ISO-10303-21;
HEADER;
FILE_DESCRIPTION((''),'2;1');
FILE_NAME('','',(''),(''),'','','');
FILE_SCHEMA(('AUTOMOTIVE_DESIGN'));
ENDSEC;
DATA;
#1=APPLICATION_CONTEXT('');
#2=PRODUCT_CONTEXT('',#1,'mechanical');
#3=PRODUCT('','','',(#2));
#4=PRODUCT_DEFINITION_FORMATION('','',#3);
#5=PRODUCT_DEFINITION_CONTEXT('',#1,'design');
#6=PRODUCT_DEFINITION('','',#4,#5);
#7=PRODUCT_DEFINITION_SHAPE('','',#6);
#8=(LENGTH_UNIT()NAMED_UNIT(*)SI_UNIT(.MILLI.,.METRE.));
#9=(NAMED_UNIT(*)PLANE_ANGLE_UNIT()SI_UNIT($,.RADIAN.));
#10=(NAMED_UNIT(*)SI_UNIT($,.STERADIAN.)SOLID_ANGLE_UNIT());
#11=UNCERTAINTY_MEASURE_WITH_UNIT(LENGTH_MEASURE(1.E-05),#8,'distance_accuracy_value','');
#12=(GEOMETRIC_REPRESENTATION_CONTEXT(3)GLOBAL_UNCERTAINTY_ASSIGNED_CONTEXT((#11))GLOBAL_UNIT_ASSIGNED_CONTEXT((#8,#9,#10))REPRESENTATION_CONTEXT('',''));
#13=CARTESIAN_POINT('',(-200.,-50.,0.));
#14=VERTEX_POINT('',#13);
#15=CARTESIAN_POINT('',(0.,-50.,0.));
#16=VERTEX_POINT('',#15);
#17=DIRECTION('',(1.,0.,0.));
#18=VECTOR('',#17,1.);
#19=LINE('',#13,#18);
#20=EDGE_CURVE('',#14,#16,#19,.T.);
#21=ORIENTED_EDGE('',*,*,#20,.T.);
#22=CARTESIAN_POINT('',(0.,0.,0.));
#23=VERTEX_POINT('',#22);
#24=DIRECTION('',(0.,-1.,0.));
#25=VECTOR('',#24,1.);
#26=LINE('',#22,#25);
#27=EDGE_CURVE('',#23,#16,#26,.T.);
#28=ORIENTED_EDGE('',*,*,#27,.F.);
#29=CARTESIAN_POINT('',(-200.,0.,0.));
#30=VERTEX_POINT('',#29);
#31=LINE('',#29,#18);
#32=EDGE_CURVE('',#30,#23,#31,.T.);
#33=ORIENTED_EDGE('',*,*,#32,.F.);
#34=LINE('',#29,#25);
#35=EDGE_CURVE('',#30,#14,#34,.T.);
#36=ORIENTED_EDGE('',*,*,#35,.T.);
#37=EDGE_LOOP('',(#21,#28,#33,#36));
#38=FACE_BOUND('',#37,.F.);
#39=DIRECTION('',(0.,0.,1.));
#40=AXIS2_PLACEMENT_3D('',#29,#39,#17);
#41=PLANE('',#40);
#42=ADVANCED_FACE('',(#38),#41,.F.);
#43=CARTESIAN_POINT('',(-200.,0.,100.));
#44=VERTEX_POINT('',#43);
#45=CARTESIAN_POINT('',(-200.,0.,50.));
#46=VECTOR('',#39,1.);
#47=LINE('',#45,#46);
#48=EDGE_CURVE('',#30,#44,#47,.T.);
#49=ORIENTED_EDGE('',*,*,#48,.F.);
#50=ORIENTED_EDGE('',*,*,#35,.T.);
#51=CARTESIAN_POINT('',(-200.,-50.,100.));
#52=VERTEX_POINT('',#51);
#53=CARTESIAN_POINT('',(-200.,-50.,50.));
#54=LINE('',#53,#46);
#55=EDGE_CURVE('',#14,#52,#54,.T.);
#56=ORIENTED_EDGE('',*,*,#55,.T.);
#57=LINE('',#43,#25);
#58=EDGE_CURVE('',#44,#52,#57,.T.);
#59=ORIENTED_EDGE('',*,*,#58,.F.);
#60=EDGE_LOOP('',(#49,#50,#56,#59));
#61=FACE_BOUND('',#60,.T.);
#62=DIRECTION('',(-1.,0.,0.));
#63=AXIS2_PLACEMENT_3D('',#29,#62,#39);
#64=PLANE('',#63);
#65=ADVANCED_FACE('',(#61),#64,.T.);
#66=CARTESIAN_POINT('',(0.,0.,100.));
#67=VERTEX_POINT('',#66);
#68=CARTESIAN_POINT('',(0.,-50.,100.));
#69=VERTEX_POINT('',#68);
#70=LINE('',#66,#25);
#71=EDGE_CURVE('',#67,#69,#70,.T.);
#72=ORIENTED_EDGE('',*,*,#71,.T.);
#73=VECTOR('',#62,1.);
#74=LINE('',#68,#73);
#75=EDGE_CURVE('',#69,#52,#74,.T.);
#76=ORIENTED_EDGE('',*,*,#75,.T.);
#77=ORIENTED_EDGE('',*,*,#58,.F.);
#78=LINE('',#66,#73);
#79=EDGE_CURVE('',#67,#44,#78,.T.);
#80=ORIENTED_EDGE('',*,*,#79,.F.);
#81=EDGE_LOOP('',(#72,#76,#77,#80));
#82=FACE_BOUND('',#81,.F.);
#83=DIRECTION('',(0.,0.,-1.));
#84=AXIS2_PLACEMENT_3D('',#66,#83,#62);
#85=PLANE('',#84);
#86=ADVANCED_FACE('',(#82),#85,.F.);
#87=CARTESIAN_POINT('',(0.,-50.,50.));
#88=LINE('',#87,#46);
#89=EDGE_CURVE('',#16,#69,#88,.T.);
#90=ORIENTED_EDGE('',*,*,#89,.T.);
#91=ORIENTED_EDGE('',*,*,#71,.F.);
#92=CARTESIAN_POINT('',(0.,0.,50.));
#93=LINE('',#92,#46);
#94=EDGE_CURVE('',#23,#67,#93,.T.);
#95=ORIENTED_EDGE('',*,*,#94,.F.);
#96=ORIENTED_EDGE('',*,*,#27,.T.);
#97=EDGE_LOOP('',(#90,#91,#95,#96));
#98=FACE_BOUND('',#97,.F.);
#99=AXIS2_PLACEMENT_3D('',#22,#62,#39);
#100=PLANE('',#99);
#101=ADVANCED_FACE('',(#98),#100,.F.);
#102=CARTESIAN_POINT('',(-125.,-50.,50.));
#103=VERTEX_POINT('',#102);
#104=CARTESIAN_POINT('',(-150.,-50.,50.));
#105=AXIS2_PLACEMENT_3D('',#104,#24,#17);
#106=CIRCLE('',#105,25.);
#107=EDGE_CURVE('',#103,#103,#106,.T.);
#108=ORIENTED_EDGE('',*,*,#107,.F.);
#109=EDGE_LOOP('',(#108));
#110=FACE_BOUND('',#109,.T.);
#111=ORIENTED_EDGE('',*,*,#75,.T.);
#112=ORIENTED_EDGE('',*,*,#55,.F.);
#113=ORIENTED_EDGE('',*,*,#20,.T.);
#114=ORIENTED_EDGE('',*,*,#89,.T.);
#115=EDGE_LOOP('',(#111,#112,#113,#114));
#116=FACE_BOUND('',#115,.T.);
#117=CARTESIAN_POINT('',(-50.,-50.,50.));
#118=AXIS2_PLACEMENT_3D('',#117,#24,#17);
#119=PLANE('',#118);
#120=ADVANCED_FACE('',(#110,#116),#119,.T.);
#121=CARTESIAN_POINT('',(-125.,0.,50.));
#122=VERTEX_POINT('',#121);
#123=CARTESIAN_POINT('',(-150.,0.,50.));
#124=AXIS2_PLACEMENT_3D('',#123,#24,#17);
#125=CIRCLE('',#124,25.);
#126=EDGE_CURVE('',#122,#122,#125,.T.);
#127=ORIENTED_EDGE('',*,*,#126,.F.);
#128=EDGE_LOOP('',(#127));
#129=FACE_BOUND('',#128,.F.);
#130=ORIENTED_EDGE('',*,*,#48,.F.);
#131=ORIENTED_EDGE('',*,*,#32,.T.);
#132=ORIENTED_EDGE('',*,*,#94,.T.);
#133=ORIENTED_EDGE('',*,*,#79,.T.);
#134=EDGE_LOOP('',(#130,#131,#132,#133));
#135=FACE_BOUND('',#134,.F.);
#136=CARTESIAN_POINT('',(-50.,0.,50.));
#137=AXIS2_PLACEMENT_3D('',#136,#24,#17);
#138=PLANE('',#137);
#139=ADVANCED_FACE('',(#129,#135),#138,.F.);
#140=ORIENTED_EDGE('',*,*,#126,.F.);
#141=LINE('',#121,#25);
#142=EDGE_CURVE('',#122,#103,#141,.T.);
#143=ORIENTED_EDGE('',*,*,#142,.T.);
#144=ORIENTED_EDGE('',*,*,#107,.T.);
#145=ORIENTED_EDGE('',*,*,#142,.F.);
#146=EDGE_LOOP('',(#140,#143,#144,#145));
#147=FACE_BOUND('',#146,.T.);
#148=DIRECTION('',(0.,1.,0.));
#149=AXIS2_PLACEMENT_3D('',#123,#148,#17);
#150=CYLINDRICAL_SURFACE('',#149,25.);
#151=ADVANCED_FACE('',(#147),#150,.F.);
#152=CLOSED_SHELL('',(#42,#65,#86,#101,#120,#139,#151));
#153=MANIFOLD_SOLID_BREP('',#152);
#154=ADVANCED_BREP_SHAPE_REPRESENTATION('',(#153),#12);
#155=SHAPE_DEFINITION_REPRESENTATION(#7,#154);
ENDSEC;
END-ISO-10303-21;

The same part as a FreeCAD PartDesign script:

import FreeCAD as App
import Part
import Sketcher

V = App.Vector
Q = App.Units.Quantity


def add_polygon(sketch, points):
    """Adds a closed chain of lines whose ends are joined by coincident constraints."""
    first, n = sketch.GeometryCount, len(points)
    for a, b in zip(points, points[1:] + points[:1]):
        sketch.addGeometry(Part.LineSegment(App.Vector(*a, 0), App.Vector(*b, 0)), False)
    for i in range(n):
        sketch.addConstraint(Sketcher.Constraint("Coincident", first + i, 2, first + (i + 1) % n, 1))

doc = App.newDocument("Part")
body = doc.addObject("PartDesign::Body", "Body")

sketch1 = body.newObject("Sketcher::SketchObject", "Sketch")
sketch1.AttachmentSupport = (doc.getObject("XZ_Plane"), [""])
sketch1.MapMode = "FlatFace"
add_polygon(sketch1, [(0, 0), (0, 100), (-200, 100), (-200, 0)])
sketch1.addGeometry(Part.Circle(V(-150, 50, 0), V(0, 0, 1), 25), False)
sketch1.addConstraint([
    Sketcher.Constraint("Vertical", 0),
    Sketcher.Constraint("Horizontal", 1),
    Sketcher.Constraint("Vertical", 2),
    Sketcher.Constraint("Horizontal", 3),
    Sketcher.Constraint("Coincident", 3, 2, -1, 1),
    Sketcher.Constraint("Diameter", 4, Q("50 mm")),
    Sketcher.Constraint("DistanceX", 1, 2, 1, 1, Q("200 mm")),
    Sketcher.Constraint("DistanceY", 0, 1, 0, 2, Q("100 mm")),
    Sketcher.Constraint("DistanceX", 4, 3, -1, 1, Q("150 mm")),
    Sketcher.Constraint("DistanceY", -1, 1, 4, 3, Q("50 mm")),
])
pad1 = body.newObject("PartDesign::Pad", "Pad")
pad1.Profile = sketch1
pad1.Length = 50

doc.recompute()
